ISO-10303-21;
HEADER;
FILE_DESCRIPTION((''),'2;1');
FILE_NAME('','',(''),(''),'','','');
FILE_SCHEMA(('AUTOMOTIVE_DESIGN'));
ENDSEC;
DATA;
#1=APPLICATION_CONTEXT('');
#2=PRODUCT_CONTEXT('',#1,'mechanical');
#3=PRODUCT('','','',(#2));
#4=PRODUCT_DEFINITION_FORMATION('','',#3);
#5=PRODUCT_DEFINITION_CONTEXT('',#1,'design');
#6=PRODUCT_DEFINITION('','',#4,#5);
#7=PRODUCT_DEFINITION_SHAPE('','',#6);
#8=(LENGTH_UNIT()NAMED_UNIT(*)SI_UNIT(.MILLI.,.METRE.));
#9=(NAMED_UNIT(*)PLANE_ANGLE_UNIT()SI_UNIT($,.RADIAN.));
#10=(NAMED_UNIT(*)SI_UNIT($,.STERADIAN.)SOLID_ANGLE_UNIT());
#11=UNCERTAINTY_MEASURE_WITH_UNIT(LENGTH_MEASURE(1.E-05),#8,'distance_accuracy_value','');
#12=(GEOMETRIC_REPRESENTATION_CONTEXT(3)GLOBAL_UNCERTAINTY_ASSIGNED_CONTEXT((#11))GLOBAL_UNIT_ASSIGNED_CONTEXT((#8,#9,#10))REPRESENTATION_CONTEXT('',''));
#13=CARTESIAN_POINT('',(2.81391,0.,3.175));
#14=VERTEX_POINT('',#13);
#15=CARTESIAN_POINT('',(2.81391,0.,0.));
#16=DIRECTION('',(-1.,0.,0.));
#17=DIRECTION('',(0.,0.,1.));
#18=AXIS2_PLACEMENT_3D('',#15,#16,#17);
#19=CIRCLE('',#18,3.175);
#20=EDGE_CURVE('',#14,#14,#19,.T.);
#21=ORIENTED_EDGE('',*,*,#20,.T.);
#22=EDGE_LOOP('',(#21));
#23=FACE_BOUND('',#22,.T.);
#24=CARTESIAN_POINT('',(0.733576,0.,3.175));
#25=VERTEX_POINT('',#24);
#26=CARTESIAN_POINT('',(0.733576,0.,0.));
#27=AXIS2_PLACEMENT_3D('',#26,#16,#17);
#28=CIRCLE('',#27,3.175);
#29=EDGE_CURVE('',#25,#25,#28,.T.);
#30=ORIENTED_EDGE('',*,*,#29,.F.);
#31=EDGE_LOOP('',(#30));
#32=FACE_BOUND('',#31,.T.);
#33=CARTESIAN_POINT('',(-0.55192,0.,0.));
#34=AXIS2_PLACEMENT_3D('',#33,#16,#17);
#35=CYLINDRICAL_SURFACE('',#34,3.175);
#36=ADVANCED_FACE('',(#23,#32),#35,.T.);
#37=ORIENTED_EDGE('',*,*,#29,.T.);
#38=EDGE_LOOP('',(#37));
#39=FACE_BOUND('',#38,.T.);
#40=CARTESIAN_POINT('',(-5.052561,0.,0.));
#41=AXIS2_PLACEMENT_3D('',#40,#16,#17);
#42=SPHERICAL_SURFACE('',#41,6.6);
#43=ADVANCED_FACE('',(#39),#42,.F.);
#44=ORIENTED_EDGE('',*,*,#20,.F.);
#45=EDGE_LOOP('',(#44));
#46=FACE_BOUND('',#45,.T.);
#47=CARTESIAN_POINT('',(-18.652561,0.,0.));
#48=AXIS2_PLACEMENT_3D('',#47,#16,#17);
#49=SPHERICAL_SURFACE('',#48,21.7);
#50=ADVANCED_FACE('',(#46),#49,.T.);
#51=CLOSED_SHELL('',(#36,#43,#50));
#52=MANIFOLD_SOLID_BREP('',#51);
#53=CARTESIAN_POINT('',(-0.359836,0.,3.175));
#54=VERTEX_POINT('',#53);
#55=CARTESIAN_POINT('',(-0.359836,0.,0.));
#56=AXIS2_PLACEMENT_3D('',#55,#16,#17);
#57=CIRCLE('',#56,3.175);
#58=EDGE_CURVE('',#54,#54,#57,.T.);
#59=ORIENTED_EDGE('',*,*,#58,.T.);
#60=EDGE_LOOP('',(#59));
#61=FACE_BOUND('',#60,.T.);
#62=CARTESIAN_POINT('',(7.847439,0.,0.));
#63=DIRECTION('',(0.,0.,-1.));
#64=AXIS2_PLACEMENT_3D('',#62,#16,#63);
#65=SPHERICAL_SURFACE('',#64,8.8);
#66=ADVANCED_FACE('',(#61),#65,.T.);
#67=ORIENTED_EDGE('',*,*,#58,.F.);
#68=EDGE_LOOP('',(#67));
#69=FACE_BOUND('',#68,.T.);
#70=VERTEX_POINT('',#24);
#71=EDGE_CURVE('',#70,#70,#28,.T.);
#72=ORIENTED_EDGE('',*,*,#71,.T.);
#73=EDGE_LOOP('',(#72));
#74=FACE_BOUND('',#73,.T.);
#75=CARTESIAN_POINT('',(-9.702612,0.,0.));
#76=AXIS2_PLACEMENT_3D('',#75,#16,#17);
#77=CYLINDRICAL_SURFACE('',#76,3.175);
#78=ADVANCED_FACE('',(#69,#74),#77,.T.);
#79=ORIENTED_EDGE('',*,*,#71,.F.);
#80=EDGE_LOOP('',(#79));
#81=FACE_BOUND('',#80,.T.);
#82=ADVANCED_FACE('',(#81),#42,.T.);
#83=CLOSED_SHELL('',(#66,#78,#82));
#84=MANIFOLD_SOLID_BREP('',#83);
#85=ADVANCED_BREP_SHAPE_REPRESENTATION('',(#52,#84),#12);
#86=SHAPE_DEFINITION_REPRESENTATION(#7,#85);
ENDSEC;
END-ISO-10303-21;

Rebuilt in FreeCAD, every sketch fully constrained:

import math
import FreeCAD as App
import Part
import Sketcher
from FreeCAD import Vector

doc = App.newDocument("Part")
body = doc.addObject("PartDesign::Body", "Body")

sketch1 = body.newObject("Sketcher::SketchObject", "Sketch")
sketch1.AttachmentSupport = (doc.getObject("XZ_Plane"), [""])
sketch1.MapMode = "FlatFace"
sketch1.addGeometry([
    Part.ArcOfCircle(Part.Circle(Vector(7.847439, 0, 0), Vector(0, 0, 1), 8.8), math.radians(-180), math.radians(-158.850944)),
    Part.LineSegment(Vector(-0.952561, 0, 0), Vector(1.547439, 0, 0)),
    Part.ArcOfCircle(Part.Circle(Vector(-5.052561, 0, 0), Vector(0, 0, 1), 6.6), math.radians(-28.754695), math.radians(0)),
    Part.LineSegment(Vector(0.733576, -3.175, 0), Vector(-0.359836, -3.175, 0)),
], False)
sketch1.addConstraint([
    Sketcher.Constraint("Coincident", 0, 1, 1, 1),
    Sketcher.Constraint("Coincident", 1, 2, 2, 2),
    Sketcher.Constraint("Coincident", 2, 1, 3, 1),
    Sketcher.Constraint("Coincident", 3, 2, 0, 2),
    Sketcher.Constraint("Horizontal", 1),
    Sketcher.Constraint("Horizontal", 3),
    Sketcher.Constraint("PointOnObject", 0, 3, -1),
    Sketcher.Constraint("PointOnObject", 2, 3, -1),
    Sketcher.Constraint("PointOnObject", 0, 1, -1),
    Sketcher.Constraint("Radius", 0, 8.8),
    Sketcher.Constraint("Radius", 2, 6.6),
    Sketcher.Constraint("DistanceX", 1, 1, 1, 2, 2.5),
    Sketcher.Constraint("DistanceY", 2, 1, -1, 1, 3.175),
    Sketcher.Constraint("DistanceX", -1, 1, 0, 3, 7.847439),
])
revolution = body.newObject("PartDesign::Revolution", "Revolution")
revolution.Profile = sketch1
revolution.ReferenceAxis = (sketch1, ["H_Axis"])
revolution.Angle = 360
body2 = doc.addObject("PartDesign::Body", "Body001")

sketch2 = body2.newObject("Sketcher::SketchObject", "Sketch001")
sketch2.AttachmentSupport = (doc.getObject("XZ_Plane001"), [""])
sketch2.MapMode = "FlatFace"
sketch2.addGeometry([
    Part.LineSegment(Vector(2.81391, -3.175, 0), Vector(0.733576, -3.175, 0)),
    Part.ArcOfCircle(Part.Circle(Vector(-5.052561, 0, 0), Vector(0, 0, 1), 6.6), math.radians(-28.754695), math.radians(0)),
    Part.LineSegment(Vector(1.547439, 0, 0), Vector(3.047439, 0, 0)),
    Part.ArcOfCircle(Part.Circle(Vector(-18.65256, 0, 0), Vector(0, 0, 1), 21.7), math.radians(-8.413341), math.radians(0)),
], False)
sketch2.addConstraint([
    Sketcher.Constraint("Coincident", 0, 2, 1, 1),
    Sketcher.Constraint("Coincident", 1, 2, 2, 1),
    Sketcher.Constraint("Coincident", 2, 2, 3, 2),
    Sketcher.Constraint("Coincident", 3, 1, 0, 1),
    Sketcher.Constraint("Horizontal", 0),
    Sketcher.Constraint("Horizontal", 2),
    Sketcher.Constraint("PointOnObject", 1, 3, -1),
    Sketcher.Constraint("PointOnObject", 3, 3, -1),
    Sketcher.Constraint("PointOnObject", 1, 2, -1),
    Sketcher.Constraint("Radius", 1, 6.6),
    Sketcher.Constraint("Radius", 3, 21.7),
    Sketcher.Constraint("DistanceX", 2, 1, 2, 2, 1.5),
    Sketcher.Constraint("DistanceY", 0, 2, -1, 1, 3.175),
    Sketcher.Constraint("DistanceX", 1, 3, -1, 1, 5.052561),
])
revolution2 = body2.newObject("PartDesign::Revolution", "Revolution001")
revolution2.Profile = sketch2
revolution2.ReferenceAxis = (sketch2, ["H_Axis"])
revolution2.Angle = 360

doc.recompute()
